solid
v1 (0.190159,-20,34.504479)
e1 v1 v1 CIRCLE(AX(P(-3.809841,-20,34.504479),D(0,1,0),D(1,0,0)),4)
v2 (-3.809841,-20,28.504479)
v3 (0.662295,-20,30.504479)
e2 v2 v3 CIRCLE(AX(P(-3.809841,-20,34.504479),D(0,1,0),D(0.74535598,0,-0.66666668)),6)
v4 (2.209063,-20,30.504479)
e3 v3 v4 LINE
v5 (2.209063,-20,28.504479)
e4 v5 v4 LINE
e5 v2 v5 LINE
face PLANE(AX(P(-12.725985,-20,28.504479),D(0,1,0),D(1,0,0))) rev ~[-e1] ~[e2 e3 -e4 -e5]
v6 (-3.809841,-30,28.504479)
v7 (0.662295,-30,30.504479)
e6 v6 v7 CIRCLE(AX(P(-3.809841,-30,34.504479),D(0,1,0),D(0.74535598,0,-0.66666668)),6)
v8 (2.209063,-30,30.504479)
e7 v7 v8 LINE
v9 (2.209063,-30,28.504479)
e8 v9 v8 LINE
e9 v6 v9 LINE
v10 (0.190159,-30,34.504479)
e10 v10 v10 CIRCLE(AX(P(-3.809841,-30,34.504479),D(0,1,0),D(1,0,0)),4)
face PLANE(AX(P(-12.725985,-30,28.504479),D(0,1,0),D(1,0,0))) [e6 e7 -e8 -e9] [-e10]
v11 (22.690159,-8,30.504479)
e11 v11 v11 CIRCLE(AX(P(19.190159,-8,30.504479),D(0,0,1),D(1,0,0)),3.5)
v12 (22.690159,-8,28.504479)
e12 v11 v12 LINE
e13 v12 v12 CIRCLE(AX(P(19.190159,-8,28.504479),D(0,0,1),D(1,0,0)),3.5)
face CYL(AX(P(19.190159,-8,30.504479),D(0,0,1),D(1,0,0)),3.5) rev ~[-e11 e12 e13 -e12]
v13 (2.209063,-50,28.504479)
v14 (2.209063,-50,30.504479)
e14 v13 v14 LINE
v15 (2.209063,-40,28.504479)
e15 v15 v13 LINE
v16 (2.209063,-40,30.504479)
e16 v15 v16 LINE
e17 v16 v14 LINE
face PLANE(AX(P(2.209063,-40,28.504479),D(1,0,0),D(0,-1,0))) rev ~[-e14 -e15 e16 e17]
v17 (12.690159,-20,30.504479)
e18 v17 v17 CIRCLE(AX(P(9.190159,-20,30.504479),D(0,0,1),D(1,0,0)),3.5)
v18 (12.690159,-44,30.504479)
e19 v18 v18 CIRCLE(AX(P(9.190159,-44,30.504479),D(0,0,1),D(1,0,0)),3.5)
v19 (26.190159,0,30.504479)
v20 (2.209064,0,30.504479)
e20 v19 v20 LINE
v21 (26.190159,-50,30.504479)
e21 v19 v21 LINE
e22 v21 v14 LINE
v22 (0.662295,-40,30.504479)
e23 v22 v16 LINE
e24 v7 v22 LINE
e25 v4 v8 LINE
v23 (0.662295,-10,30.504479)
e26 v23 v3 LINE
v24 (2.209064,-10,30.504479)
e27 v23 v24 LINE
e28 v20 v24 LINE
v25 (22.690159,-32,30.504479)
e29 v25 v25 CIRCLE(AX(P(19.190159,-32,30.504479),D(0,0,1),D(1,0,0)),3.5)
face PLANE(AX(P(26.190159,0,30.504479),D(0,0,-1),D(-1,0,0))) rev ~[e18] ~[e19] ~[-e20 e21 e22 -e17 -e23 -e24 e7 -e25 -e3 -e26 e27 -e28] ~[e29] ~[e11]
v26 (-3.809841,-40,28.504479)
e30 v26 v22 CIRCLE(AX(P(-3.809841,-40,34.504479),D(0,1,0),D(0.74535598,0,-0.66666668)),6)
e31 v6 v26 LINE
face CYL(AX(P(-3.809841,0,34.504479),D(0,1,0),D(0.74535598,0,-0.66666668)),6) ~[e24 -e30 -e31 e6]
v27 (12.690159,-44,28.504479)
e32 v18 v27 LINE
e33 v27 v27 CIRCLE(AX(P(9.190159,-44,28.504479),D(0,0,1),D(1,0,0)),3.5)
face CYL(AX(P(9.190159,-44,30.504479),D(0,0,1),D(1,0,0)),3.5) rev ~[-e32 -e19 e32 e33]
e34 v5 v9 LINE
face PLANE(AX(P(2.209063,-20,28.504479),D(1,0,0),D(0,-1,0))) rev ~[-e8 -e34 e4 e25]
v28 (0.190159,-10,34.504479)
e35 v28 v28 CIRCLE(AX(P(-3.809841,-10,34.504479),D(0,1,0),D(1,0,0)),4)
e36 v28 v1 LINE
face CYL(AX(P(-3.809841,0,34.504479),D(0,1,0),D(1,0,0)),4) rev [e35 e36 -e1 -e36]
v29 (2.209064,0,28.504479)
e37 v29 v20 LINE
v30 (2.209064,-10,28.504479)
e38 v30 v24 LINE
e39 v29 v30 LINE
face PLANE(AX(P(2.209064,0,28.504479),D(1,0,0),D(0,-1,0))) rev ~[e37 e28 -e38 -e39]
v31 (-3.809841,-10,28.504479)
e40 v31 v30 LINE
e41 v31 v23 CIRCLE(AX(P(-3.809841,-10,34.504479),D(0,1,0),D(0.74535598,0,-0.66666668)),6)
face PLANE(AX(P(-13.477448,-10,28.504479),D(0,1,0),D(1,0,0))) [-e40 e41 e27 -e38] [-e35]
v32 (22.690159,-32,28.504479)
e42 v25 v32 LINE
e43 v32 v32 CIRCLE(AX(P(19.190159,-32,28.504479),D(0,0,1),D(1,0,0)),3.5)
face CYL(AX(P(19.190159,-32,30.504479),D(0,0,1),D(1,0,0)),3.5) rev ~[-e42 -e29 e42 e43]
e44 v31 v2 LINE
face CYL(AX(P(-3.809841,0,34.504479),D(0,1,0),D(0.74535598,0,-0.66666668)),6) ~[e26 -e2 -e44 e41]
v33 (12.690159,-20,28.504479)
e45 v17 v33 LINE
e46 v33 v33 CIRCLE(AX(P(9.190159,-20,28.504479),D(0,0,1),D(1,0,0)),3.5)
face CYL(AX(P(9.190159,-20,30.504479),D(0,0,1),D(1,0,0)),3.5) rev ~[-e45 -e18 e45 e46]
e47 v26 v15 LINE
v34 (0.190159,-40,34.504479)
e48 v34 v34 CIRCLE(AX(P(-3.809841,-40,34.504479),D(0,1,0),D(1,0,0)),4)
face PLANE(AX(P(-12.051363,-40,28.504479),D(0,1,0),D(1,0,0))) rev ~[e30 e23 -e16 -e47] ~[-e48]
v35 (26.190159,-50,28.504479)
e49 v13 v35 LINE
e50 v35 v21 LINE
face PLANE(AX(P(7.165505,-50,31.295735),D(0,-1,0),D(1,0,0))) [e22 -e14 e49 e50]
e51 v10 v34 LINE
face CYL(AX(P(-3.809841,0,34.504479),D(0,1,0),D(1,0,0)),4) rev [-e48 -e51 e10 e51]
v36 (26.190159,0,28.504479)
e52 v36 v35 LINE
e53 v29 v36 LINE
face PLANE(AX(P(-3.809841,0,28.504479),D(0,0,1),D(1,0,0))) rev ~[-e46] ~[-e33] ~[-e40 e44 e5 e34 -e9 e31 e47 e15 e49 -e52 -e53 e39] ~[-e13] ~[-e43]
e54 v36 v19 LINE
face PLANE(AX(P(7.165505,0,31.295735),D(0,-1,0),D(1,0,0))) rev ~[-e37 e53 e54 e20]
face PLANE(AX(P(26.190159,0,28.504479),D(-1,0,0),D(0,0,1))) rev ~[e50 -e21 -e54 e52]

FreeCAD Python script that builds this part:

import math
import FreeCAD as App
import Part
import Sketcher

V = App.Vector


def add_polygon(sketch, points):
    """Adds a closed chain of lines whose ends are joined by coincident constraints."""
    first, n = sketch.GeometryCount, len(points)
    for a, b in zip(points, points[1:] + points[:1]):
        sketch.addGeometry(Part.LineSegment(App.Vector(*a, 0), App.Vector(*b, 0)), False)
    for i in range(n):
        sketch.addConstraint(Sketcher.Constraint("Coincident", first + i, 2, first + (i + 1) % n, 1))

doc = App.newDocument("Part")
body = doc.addObject("PartDesign::Body", "Body")

# Sketch on XZ plane
sketch1 = body.newObject("Sketcher::SketchObject", "Sketch")
sketch1.AttachmentSupport = (doc.getObject("XZ_Plane"), [""])
sketch1.MapMode = "FlatFace"
sketch1.addGeometry([
    Part.LineSegment(V(26.2, 30.5, 0), V(0.7, 30.5, 0)),  # 0
    Part.ArcOfCircle(Part.Circle(V(-3.8, 34.5, 0), V(0, 0, 1), 6), math.radians(-42), math.radians(270)),  # 1
    Part.LineSegment(V(-3.8, 28.5, 0), V(26.2, 28.5, 0)),  # 2
    Part.LineSegment(V(26.2, 28.5, 0), V(26.2, 30.5, 0)),  # 3
    Part.Circle(V(-3.8, 34.5, 0), V(0, 0, 1), 4),  # 4
], False)
sketch1.addConstraint([
    Sketcher.Constraint("Coincident", 0, 2, 1, 1),
    Sketcher.Constraint("Tangent", 1, 2, 2, 1),
    Sketcher.Constraint("Coincident", 2, 2, 3, 1),
    Sketcher.Constraint("Coincident", 3, 2, 0, 1),
    Sketcher.Constraint("Horizontal", 0),
    Sketcher.Constraint("Horizontal", 2),
    Sketcher.Constraint("Vertical", 3),
    Sketcher.Constraint("Coincident", 4, 3, 1, 3),
    Sketcher.Constraint("Diameter", 4, 8.0),
    Sketcher.Constraint("Radius", 1, 6.0),
    Sketcher.Constraint("DistanceX", 2, 1, 2, 2, 30.0),
    Sketcher.Constraint("DistanceY", 3, 1, 3, 2, 2.0),
    Sketcher.Constraint("DistanceX", 1, 3, -1, 1, 3.809841),
    Sketcher.Constraint("DistanceY", -1, 1, 1, 3, 34.504479),
])
pad1 = body.newObject("PartDesign::Pad", "Pad")
pad1.Profile = sketch1
pad1.Length = 50

# Sketch on XY plane
sketch2 = body.newObject("Sketcher::SketchObject", "Sketch001")
sketch2.AttachmentSupport = (doc.getObject("XY_Plane"), [""])
sketch2.MapMode = "FlatFace"
sketch2.AttachmentOffset = App.Placement(V(0, 0, 30.504479), App.Rotation())
sketch2.addGeometry([
    Part.Circle(V(19.2, -32, 0), V(0, 0, 1), 3.5),
    Part.Circle(V(9.2, -44, 0), V(0, 0, 1), 3.5),
    Part.Circle(V(9.2, -20, 0), V(0, 0, 1), 3.5),
    Part.Circle(V(19.2, -8, 0), V(0, 0, 1), 3.5),
], False)
sketch2.addConstraint([
    Sketcher.Constraint("Equal", 0, 1),
    Sketcher.Constraint("Equal", 1, 2),
    Sketcher.Constraint("Equal", 2, 3),
    Sketcher.Constraint("Vertical", 1, 3, 2, 3),
    Sketcher.Constraint("Vertical", 0, 3, 3, 3),
    Sketcher.Constraint("Diameter", 0, 7.0),
    Sketcher.Constraint("DistanceY", 0, 3, -1, 1, 32.0),
    Sketcher.Constraint("DistanceY", 1, 3, -1, 1, 44.0),
    Sketcher.Constraint("DistanceY", 2, 3, -1, 1, 20.0),
    Sketcher.Constraint("DistanceY", 3, 3, -1, 1, 8.0),
    Sketcher.Constraint("DistanceX", 1, 3, 0, 3, 10.0),
    Sketcher.Constraint("DistanceX", -1, 1, 0, 3, 19.190159),
])
pocket1 = body.newObject("PartDesign::Pocket", "Pocket")
pocket1.Profile = sketch2
pocket1.Type = "ThroughAll"

# Sketch on XY plane
sketch3 = body.newObject("Sketcher::SketchObject", "Sketch002")
sketch3.AttachmentSupport = (doc.getObject("XY_Plane"), [""])
sketch3.MapMode = "FlatFace"
sketch3.AttachmentOffset = App.Placement(V(0, 0, 28.504479), App.Rotation())
add_polygon(sketch3, [(-12, -50), (-12, -40), (2, -40), (2, -50)])  # lines 0-3
add_polygon(sketch3, [(-13, -30), (-13, -20), (2, -20), (2, -30)])  # lines 4-7
add_polygon(sketch3, [(-13, -10), (-13, 0), (2, 0), (2, -10)])  # lines 8-11
sketch3.addConstraint([
    Sketcher.Constraint("Vertical", 0),
    Sketcher.Constraint("Horizontal", 1),
    Sketcher.Constraint("Vertical", 2),
    Sketcher.Constraint("Horizontal", 3),
    Sketcher.Constraint("Vertical", 4),
    Sketcher.Constraint("Horizontal", 5),
    Sketcher.Constraint("Vertical", 6),
    Sketcher.Constraint("Horizontal", 7),
    Sketcher.Constraint("Vertical", 8),
    Sketcher.Constraint("Horizontal", 9),
    Sketcher.Constraint("Vertical", 10),
    Sketcher.Constraint("Horizontal", 11),
    Sketcher.Constraint("PointOnObject", 8, 2, -1),
    Sketcher.Constraint("Vertical", 2, 2, 5, 2),
    Sketcher.Constraint("Vertical", 6, 2, 9, 2),
    Sketcher.Constraint("Equal", 2, 4),
    Sketcher.Constraint("Equal", 6, 8),
    Sketcher.Constraint("DistanceY", 0, 1, 0, 2, 10.0),
    Sketcher.Constraint("DistanceY", 0, 2, -1, 1, 40.0),
    Sketcher.Constraint("DistanceY", 4, 2, -1, 1, 20.0),
    Sketcher.Constraint("DistanceX", 9, 1, 9, 2, 15.686511),
    Sketcher.Constraint("DistanceX", 1, 1, 1, 2, 14.260426),
    Sketcher.Constraint("DistanceX", 5, 1, 5, 2, 14.935048),
    Sketcher.Constraint("DistanceX", 0, 2, -1, 1, 12.051363),
])
pocket2 = body.newObject("PartDesign::Pocket", "Pocket001")
pocket2.Profile = sketch3
pocket2.Length = 25
pocket2.Reversed = True

doc.recompute()
